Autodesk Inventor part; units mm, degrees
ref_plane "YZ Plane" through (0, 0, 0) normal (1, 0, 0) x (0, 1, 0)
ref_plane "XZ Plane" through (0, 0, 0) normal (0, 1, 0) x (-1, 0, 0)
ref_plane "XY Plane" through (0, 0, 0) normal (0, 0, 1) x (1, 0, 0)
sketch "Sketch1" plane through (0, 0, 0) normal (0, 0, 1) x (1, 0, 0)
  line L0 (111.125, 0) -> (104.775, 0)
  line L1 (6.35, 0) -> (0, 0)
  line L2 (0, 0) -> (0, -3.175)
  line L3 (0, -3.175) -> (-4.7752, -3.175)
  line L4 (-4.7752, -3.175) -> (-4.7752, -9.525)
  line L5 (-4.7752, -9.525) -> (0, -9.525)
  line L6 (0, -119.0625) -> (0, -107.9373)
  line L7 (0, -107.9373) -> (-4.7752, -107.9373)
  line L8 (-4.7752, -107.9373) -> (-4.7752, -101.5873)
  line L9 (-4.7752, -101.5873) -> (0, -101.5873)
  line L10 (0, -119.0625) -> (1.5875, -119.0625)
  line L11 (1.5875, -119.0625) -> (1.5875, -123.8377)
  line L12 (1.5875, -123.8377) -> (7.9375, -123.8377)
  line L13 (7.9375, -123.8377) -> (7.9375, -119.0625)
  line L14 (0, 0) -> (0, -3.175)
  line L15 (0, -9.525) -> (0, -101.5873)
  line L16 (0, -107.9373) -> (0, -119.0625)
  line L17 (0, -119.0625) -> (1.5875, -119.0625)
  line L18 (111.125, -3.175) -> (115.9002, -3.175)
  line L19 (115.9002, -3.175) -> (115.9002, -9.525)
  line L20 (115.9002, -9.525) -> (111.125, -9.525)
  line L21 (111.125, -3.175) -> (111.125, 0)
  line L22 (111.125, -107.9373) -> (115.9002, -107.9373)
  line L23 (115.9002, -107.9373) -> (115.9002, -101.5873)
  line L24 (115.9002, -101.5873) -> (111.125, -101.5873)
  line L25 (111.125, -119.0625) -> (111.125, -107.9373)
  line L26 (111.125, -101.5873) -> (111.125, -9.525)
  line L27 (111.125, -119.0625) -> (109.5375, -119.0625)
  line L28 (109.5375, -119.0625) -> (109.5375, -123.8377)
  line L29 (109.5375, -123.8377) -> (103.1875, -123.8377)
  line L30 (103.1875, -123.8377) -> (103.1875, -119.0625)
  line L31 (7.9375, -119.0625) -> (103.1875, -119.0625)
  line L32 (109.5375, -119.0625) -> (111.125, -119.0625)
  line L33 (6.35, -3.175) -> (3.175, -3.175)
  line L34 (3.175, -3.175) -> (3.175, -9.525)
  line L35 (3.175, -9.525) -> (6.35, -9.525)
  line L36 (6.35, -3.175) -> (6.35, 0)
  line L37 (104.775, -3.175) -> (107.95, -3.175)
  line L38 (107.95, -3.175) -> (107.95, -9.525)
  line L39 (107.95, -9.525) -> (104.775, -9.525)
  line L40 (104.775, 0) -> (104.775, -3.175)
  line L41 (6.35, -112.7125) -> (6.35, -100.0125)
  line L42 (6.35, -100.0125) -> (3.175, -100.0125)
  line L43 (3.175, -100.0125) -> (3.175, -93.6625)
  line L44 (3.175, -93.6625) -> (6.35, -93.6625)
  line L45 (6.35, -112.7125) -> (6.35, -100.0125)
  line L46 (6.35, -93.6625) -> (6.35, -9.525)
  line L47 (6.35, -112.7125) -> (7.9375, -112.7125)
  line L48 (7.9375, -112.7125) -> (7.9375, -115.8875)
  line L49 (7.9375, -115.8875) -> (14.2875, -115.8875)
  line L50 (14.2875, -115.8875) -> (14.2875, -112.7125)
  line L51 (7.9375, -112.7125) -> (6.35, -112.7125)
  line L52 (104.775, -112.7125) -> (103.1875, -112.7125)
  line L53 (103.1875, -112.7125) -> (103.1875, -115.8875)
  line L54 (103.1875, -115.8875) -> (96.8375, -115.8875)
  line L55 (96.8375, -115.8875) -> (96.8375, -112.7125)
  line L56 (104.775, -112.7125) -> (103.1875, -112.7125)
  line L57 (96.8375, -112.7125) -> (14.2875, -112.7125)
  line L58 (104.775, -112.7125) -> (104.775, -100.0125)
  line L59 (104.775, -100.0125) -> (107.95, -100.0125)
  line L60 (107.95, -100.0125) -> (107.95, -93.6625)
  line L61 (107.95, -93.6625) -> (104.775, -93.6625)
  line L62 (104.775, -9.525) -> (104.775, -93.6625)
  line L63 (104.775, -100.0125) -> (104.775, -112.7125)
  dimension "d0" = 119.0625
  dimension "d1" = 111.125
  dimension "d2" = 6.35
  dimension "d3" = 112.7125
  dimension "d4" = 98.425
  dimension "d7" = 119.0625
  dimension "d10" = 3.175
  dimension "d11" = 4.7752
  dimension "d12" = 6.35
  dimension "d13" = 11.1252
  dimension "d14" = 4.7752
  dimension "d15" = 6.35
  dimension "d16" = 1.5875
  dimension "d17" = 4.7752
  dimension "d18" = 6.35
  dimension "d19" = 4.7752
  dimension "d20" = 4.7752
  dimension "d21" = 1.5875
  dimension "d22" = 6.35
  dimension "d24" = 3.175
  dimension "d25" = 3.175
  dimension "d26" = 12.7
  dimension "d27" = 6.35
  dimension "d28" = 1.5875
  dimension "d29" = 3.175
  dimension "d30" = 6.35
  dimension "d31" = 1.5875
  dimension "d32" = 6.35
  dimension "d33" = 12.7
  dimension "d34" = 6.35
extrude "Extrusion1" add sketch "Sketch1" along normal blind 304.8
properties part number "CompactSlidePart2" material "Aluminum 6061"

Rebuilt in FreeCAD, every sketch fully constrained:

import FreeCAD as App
import Part
import Sketcher
from FreeCAD import Vector
Q = App.Units.Quantity


def add_polygon(sketch, points):
    """Adds a closed chain of lines whose ends are joined by coincident constraints."""
    first, n = sketch.GeometryCount, len(points)
    for a, b in zip(points, points[1:] + points[:1]):
        sketch.addGeometry(Part.LineSegment(App.Vector(*a, 0), App.Vector(*b, 0)), False)
    for i in range(n):
        sketch.addConstraint(Sketcher.Constraint("Coincident", first + i, 2, first + (i + 1) % n, 1))

doc = App.newDocument("Part")
body = doc.addObject("PartDesign::Body", "Body")

# Sketch on XY plane
sketch1 = body.newObject("Sketcher::SketchObject", "Sketch")
sketch1.AttachmentSupport = (doc.getObject("XY_Plane"), [""])
sketch1.MapMode = "FlatFace"
add_polygon(sketch1, [(111.1, -3.2), (111.1, 0), (104.8, 0), (104.8, -3.2), (108, -3.2), (108, -9.5), (104.8, -9.5), (104.8, -93.7), (108, -93.7), (108, -100), (104.8, -100), (104.8, -112.7), (103.2, -112.7), (103.2, -115.9), (96.8, -115.9), (96.8, -112.7), (14.3, -112.7), (14.3, -115.9), (7.9, -115.9), (7.9, -112.7), (6.3, -112.7), (6.3, -100), (3.2, -100), (3.2, -93.7), (6.3, -93.7), (6.3, -9.5), (3.2, -9.5), (3.2, -3.2), (6.3, -3.2), (6.3, 0), (0, 0), (0, -3.2), (-4.8, -3.2), (-4.8, -9.5), (0, -9.5), (0, -101.6), (-4.8, -101.6), (-4.8, -107.9), (0, -107.9), (0, -119.1), (1.6, -119.1), (1.6, -123.8), (7.9, -123.8), (7.9, -119.1), (103.2, -119.1), (103.2, -123.8), (109.5, -123.8), (109.5, -119.1), (111.1, -119.1), (111.1, -107.9), (115.9, -107.9), (115.9, -101.6), (111.1, -101.6), (111.1, -9.5), (115.9, -9.5), (115.9, -3.2)])  # lines 0-55
sketch1.addConstraint([
    Sketcher.Constraint("Vertical", 0),
    Sketcher.Constraint("Horizontal", 1),
    Sketcher.Constraint("Vertical", 2),
    Sketcher.Constraint("Horizontal", 3),
    Sketcher.Constraint("Vertical", 4),
    Sketcher.Constraint("Horizontal", 5),
    Sketcher.Constraint("Vertical", 6),
    Sketcher.Constraint("Horizontal", 7),
    Sketcher.Constraint("Vertical", 8),
    Sketcher.Constraint("Horizontal", 9),
    Sketcher.Constraint("Vertical", 10),
    Sketcher.Constraint("Horizontal", 11),
    Sketcher.Constraint("Vertical", 12),
    Sketcher.Constraint("Horizontal", 13),
    Sketcher.Constraint("Vertical", 14),
    Sketcher.Constraint("Horizontal", 15),
    Sketcher.Constraint("Vertical", 16),
    Sketcher.Constraint("Horizontal", 17),
    Sketcher.Constraint("Vertical", 18),
    Sketcher.Constraint("Horizontal", 19),
    Sketcher.Constraint("Vertical", 20),
    Sketcher.Constraint("Horizontal", 21),
    Sketcher.Constraint("Vertical", 22),
    Sketcher.Constraint("Horizontal", 23),
    Sketcher.Constraint("Vertical", 24),
    Sketcher.Constraint("Horizontal", 25),
    Sketcher.Constraint("Vertical", 26),
    Sketcher.Constraint("Horizontal", 27),
    Sketcher.Constraint("Vertical", 28),
    Sketcher.Constraint("Horizontal", 29),
    Sketcher.Constraint("Vertical", 30),
    Sketcher.Constraint("Horizontal", 31),
    Sketcher.Constraint("Vertical", 32),
    Sketcher.Constraint("Horizontal", 33),
    Sketcher.Constraint("Vertical", 34),
    Sketcher.Constraint("Horizontal", 35),
    Sketcher.Constraint("Vertical", 36),
    Sketcher.Constraint("Horizontal", 37),
    Sketcher.Constraint("Vertical", 38),
    Sketcher.Constraint("Horizontal", 39),
    Sketcher.Constraint("Vertical", 40),
    Sketcher.Constraint("Horizontal", 41),
    Sketcher.Constraint("Vertical", 42),
    Sketcher.Constraint("Horizontal", 43),
    Sketcher.Constraint("Vertical", 44),
    Sketcher.Constraint("Horizontal", 45),
    Sketcher.Constraint("Vertical", 46),
    Sketcher.Constraint("Horizontal", 47),
    Sketcher.Constraint("Vertical", 48),
    Sketcher.Constraint("Horizontal", 49),
    Sketcher.Constraint("Vertical", 50),
    Sketcher.Constraint("Horizontal", 51),
    Sketcher.Constraint("Vertical", 52),
    Sketcher.Constraint("Horizontal", 53),
    Sketcher.Constraint("Vertical", 54),
    Sketcher.Constraint("Horizontal", 55),
    Sketcher.Constraint("Coincident", 29, 2, -1, 1),
    Sketcher.Constraint("PointOnObject", 0, 2, -1),
    Sketcher.Constraint("PointOnObject", 33, 2, -2),
    Sketcher.Constraint("PointOnObject", 37, 2, -2),
    Sketcher.Constraint("Horizontal", 11, 2, 14, 2),
    Sketcher.Constraint("Horizontal", 13, 2, 16, 2),
    Sketcher.Constraint("Horizontal", 15, 2, 18, 2),
    Sketcher.Constraint("Horizontal", 9, 2, 20, 2),
    Sketcher.Constraint("Horizontal", 7, 2, 22, 2),
    Sketcher.Constraint("Horizontal", 5, 2, 24, 2),
    Sketcher.Constraint("Horizontal", 3, 2, 26, 2),
    Sketcher.Constraint("Horizontal", 27, 2, 30, 2),
    Sketcher.Constraint("Horizontal", 25, 2, 32, 2),
    Sketcher.Constraint("Horizontal", 39, 2, 42, 2),
    Sketcher.Constraint("Horizontal", 41, 2, 44, 2),
    Sketcher.Constraint("Horizontal", 43, 2, 46, 2),
    Sketcher.Constraint("Horizontal", 37, 2, 48, 2),
    Sketcher.Constraint("Horizontal", 35, 2, 50, 2),
    Sketcher.Constraint("Horizontal", 33, 2, 52, 2),
    Sketcher.Constraint("Horizontal", 31, 2, 54, 2),
    Sketcher.Constraint("Vertical", 2, 2, 5, 2),
    Sketcher.Constraint("Vertical", 4, 2, 7, 2),
    Sketcher.Constraint("Vertical", 6, 2, 9, 2),
    Sketcher.Constraint("Vertical", 20, 2, 23, 2),
    Sketcher.Constraint("Vertical", 22, 2, 25, 2),
    Sketcher.Constraint("Vertical", 24, 2, 27, 2),
    Sketcher.Constraint("Vertical", 32, 2, 35, 2),
    Sketcher.Constraint("Vertical", 18, 2, 41, 2),
    Sketcher.Constraint("Vertical", 12, 2, 43, 2),
    Sketcher.Constraint("Vertical", 0, 2, 47, 2),
    Sketcher.Constraint("Vertical", 48, 2, 51, 2),
    Sketcher.Constraint("Vertical", 50, 2, 53, 2),
    Sketcher.Constraint("Equal", 1, 13),
    Sketcher.Constraint("Equal", 13, 17),
    Sketcher.Constraint("Equal", 11, 19),
    Sketcher.Constraint("Equal", 9, 21),
    Sketcher.Constraint("Equal", 17, 29),
    Sketcher.Constraint("Equal", 19, 39),
    Sketcher.Constraint("Equal", 41, 45),
    Sketcher.Constraint("Equal", 37, 49),
    Sketcher.Constraint("Equal", 27, 0),
    Sketcher.Constraint("Equal", 45, 4),
    Sketcher.Constraint("Equal", 4, 8),
    Sketcher.Constraint("Equal", 2, 12),
    Sketcher.Constraint("Equal", 32, 36),
    Sketcher.Constraint("Equal", 55, 40),
    Sketcher.Constraint("DistanceY", 10, 2, 10, 1, Q("0.5 in")),
    Sketcher.Constraint("DistanceX", 1, 2, 1, 1, Q("0.25 in")),
    Sketcher.Constraint("DistanceX", 3, 1, 3, 2, Q("0.125 in")),
    Sketcher.Constraint("DistanceX", 11, 2, 11, 1, Q("0.0625 in")),
    Sketcher.Constraint("DistanceX", 31, 2, 31, 1, Q("0.188 in")),
    Sketcher.Constraint("DistanceY", 38, 2, 38, 1, Q("0.438 in")),
    Sketcher.Constraint("DistanceY", 38, 2, 19, 2, Q("0.25 in")),
    Sketcher.Constraint("DistanceX", -1, 1, 0, 2, Q("4.375 in")),
    Sketcher.Constraint("DistanceY", 10, 2, -1, 1, Q("4.4375 in")),
])
pad1 = body.newObject("PartDesign::Pad", "Pad")
pad1.Profile = sketch1
pad1.Length = Q("12 in")

doc.recompute()
